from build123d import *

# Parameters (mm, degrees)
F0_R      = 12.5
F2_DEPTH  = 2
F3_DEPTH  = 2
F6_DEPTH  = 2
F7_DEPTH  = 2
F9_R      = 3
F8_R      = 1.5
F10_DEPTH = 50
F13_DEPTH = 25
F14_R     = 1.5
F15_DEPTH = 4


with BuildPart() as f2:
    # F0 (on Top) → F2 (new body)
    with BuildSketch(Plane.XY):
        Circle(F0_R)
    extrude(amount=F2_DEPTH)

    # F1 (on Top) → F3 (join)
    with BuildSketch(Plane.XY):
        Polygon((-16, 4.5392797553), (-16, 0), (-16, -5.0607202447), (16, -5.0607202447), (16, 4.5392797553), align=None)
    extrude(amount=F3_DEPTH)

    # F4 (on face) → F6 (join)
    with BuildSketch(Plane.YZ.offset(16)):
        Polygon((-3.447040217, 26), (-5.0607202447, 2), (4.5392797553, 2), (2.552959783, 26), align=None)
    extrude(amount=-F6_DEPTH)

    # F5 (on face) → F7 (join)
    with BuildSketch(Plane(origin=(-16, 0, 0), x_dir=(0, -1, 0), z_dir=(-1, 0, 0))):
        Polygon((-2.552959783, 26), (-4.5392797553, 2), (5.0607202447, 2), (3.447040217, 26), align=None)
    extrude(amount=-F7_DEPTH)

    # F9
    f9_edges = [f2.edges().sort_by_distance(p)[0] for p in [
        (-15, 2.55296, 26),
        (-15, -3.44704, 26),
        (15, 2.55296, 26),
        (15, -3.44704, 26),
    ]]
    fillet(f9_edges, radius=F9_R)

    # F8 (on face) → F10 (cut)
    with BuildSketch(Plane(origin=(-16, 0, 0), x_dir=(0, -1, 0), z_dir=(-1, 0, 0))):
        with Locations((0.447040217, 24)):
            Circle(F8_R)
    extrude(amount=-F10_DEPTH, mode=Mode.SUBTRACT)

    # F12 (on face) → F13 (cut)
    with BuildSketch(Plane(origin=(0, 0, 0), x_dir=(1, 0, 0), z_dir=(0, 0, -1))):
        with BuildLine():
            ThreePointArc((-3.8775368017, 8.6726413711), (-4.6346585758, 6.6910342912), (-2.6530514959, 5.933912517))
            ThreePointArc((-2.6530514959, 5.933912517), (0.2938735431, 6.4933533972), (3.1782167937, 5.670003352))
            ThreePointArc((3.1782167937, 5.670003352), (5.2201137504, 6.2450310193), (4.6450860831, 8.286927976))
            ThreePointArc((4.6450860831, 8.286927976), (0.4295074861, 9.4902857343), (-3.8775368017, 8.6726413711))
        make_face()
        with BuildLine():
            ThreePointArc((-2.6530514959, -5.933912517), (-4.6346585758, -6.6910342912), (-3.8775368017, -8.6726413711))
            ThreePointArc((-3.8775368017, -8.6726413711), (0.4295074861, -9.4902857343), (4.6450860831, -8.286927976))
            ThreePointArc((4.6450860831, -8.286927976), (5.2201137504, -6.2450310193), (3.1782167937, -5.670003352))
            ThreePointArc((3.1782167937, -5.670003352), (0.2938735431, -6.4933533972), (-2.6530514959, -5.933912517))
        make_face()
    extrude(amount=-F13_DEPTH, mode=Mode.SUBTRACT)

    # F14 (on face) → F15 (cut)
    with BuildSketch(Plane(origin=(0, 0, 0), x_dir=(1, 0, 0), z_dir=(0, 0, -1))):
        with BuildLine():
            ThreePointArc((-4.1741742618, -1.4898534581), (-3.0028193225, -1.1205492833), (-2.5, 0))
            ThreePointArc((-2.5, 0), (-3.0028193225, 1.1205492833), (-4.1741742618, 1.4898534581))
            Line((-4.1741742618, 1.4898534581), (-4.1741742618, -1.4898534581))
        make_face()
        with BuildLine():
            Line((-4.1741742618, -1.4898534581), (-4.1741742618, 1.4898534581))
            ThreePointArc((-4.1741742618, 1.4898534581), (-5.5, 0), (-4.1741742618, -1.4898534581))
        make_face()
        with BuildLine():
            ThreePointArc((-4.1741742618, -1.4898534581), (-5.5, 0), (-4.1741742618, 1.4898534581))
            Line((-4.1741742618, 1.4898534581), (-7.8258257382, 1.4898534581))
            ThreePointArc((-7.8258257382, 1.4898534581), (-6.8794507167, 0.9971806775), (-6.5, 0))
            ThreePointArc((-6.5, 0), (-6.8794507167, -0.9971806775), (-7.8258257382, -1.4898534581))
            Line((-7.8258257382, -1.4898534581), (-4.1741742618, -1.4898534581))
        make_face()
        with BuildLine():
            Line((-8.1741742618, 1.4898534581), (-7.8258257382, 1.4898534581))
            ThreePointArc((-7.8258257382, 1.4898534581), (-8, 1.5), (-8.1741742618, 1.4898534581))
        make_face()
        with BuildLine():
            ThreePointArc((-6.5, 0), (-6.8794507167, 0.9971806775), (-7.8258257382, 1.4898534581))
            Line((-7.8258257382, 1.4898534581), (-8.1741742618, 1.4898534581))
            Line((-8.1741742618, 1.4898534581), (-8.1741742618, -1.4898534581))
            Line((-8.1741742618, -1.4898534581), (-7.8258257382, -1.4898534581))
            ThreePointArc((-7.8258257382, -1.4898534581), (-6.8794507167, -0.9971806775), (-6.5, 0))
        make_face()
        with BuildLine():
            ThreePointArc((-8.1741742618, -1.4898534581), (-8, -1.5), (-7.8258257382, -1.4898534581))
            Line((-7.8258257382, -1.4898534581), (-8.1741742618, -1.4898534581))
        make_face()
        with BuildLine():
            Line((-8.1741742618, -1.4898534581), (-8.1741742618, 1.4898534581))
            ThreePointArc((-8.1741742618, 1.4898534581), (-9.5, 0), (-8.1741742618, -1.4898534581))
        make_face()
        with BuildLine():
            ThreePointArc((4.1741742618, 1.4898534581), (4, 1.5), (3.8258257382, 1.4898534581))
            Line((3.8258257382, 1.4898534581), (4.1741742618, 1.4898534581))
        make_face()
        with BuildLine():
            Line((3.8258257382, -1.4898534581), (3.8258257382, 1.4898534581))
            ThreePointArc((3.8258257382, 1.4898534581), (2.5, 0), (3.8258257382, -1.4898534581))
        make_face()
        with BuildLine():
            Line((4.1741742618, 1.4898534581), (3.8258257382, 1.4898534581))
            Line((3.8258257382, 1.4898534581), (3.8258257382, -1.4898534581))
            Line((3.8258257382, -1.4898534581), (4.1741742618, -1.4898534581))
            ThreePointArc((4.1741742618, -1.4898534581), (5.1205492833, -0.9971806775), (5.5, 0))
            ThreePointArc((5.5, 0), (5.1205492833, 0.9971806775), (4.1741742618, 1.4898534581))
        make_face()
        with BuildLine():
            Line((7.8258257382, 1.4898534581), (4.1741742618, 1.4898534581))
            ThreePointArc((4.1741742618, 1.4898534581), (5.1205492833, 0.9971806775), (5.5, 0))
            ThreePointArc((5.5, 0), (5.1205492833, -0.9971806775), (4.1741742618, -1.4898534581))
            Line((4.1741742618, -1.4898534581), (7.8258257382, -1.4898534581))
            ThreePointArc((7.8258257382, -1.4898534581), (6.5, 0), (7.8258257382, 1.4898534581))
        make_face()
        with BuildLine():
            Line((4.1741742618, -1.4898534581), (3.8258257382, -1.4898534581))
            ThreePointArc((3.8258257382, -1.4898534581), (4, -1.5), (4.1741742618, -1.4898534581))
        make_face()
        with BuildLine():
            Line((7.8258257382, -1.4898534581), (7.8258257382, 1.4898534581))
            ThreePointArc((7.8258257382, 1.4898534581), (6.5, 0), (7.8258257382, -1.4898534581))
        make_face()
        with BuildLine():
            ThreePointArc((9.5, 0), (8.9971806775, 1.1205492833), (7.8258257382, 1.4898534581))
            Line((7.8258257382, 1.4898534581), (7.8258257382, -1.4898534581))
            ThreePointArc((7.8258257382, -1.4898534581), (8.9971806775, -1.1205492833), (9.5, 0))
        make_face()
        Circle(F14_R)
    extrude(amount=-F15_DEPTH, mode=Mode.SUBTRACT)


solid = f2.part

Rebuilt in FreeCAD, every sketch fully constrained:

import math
import FreeCAD as App
import Part
import Sketcher

V = App.Vector


def edges_at(feature, points):
    """Names of the edges that pass closest to the given points."""
    edges = feature.Shape.Edges
    near = lambda p: min(range(len(edges)), key=lambda i: edges[i].distToShape(Part.Vertex(*p))[0])
    return sorted({f"Edge{near(p) + 1}" for p in points})

doc = App.newDocument("Part")
body = doc.addObject("PartDesign::Body", "Body")

# Sketch on XY plane
sketch1 = doc.addObject("Sketcher::SketchObject", "Sketch")
body.addObject(sketch1)
sketch1.AttachmentSupport = (doc.XY_Plane, [""])
sketch1.MapMode = "FlatFace"
sketch1.addGeometry(Part.Circle(V(0, 0, 0), V(0, 0, 1), 12), False)
sketch1.addConstraint([
    Sketcher.Constraint("Coincident", 0, 3, -1, 1),
    Sketcher.Constraint("Diameter", 0, 25.0),
])
pad1 = doc.addObject("PartDesign::Pad", "Pad")
body.addObject(pad1)
pad1.Profile = sketch1
pad1.Length = 2

# Sketch on XY plane
sketch2 = doc.addObject("Sketcher::SketchObject", "Sketch001")
body.addObject(sketch2)
sketch2.AttachmentSupport = (doc.XY_Plane, [""])
sketch2.MapMode = "FlatFace"
sketch2.addGeometry([
    Part.LineSegment(V(-16, 5, 0), V(-16, -5, 0)),
    Part.LineSegment(V(-16, -5, 0), V(16, -5, 0)),
    Part.LineSegment(V(16, -5, 0), V(16, 5, 0)),
    Part.LineSegment(V(16, 5, 0), V(-16, 5, 0)),
], False)
sketch2.addConstraint([
    Sketcher.Constraint("Coincident", 0, 2, 1, 1),
    Sketcher.Constraint("Coincident", 1, 2, 2, 1),
    Sketcher.Constraint("Coincident", 2, 2, 3, 1),
    Sketcher.Constraint("Coincident", 3, 2, 0, 1),
    Sketcher.Constraint("Vertical", 0),
    Sketcher.Constraint("Horizontal", 1),
    Sketcher.Constraint("Vertical", 2),
    Sketcher.Constraint("Horizontal", 3),
    Sketcher.Constraint("DistanceX", 1, 1, 1, 2, 32.0),
    Sketcher.Constraint("DistanceY", 0, 2, 0, 1, 9.6),
    Sketcher.Constraint("DistanceX", 0, 2, -1, 1, 16.0),
    Sketcher.Constraint("DistanceY", 0, 2, -1, 1, 5.06072),
])
pad2 = doc.addObject("PartDesign::Pad", "Pad001")
body.addObject(pad2)
pad2.Profile = sketch2
pad2.Length = 2

# Sketch on YZ plane
sketch3 = doc.addObject("Sketcher::SketchObject", "Sketch002")
body.addObject(sketch3)
sketch3.AttachmentSupport = (doc.YZ_Plane, [""])
sketch3.MapMode = "FlatFace"
sketch3.AttachmentOffset = App.Placement(V(0, 0, 16), App.Rotation())
sketch3.addGeometry([
    Part.LineSegment(V(-3, 26, 0), V(-5, 2, 0)),
    Part.LineSegment(V(-5, 2, 0), V(5, 2, 0)),
    Part.LineSegment(V(5, 2, 0), V(3, 26, 0)),
    Part.LineSegment(V(3, 26, 0), V(-3, 26, 0)),
], False)
sketch3.addConstraint([
    Sketcher.Constraint("Coincident", 0, 2, 1, 1),
    Sketcher.Constraint("Coincident", 1, 2, 2, 1),
    Sketcher.Constraint("Coincident", 2, 2, 3, 1),
    Sketcher.Constraint("Coincident", 3, 2, 0, 1),
    Sketcher.Constraint("Horizontal", 1),
    Sketcher.Constraint("Horizontal", 3),
    Sketcher.Constraint("DistanceX", 3, 2, 3, 1, 6.0),
    Sketcher.Constraint("DistanceX", 1, 1, 1, 2, 9.6),
    Sketcher.Constraint("DistanceY", -1, 1, 0, 2, 2.0),
    Sketcher.Constraint("DistanceY", -1, 1, 2, 2, 26.0),
    Sketcher.Constraint("Distance", 0, 24.054188),
    Sketcher.Constraint("DistanceX", 0, 2, -1, 1, 5.06072),
])
pad3 = doc.addObject("PartDesign::Pad", "Pad002")
body.addObject(pad3)
pad3.Profile = sketch3
pad3.Length = 2
pad3.Reversed = True

# Sketch on YZ plane
sketch4 = doc.addObject("Sketcher::SketchObject", "Sketch003")
body.addObject(sketch4)
sketch4.AttachmentSupport = (doc.YZ_Plane, [""])
sketch4.MapMode = "FlatFace"
sketch4.AttachmentOffset = App.Placement(V(0, 0, -16), App.Rotation())
sketch4.addGeometry([
    Part.LineSegment(V(3, 26, 0), V(5, 2, 0)),
    Part.LineSegment(V(5, 2, 0), V(-5, 2, 0)),
    Part.LineSegment(V(-5, 2, 0), V(-3, 26, 0)),
    Part.LineSegment(V(-3, 26, 0), V(3, 26, 0)),
], False)
sketch4.addConstraint([
    Sketcher.Constraint("Coincident", 0, 2, 1, 1),
    Sketcher.Constraint("Coincident", 1, 2, 2, 1),
    Sketcher.Constraint("Coincident", 2, 2, 3, 1),
    Sketcher.Constraint("Coincident", 3, 2, 0, 1),
    Sketcher.Constraint("Horizontal", 1),
    Sketcher.Constraint("Horizontal", 3),
    Sketcher.Constraint("DistanceX", 3, 1, 3, 2, 6.0),
    Sketcher.Constraint("DistanceX", 1, 2, 1, 1, 9.6),
    Sketcher.Constraint("DistanceY", -1, 1, 0, 2, 2.0),
    Sketcher.Constraint("DistanceY", -1, 1, 2, 2, 26.0),
    Sketcher.Constraint("Distance", 2, 24.054188),
    Sketcher.Constraint("DistanceX", -1, 1, 0, 2, 4.53928),
])
pad4 = doc.addObject("PartDesign::Pad", "Pad003")
body.addObject(pad4)
pad4.Profile = sketch4
pad4.Length = 2
doc.recompute()

fillet = doc.addObject("PartDesign::Fillet", "Fillet")
body.addObject(fillet)
fillet.Base = (pad4, edges_at(pad4, [
    (-15, 2.553, 26),
    (-15, -3.447, 26),
    (15, 2.553, 26),
    (15, -3.447, 26),
]))
fillet.Radius = 3

# Sketch on YZ plane
sketch5 = doc.addObject("Sketcher::SketchObject", "Sketch004")
body.addObject(sketch5)
sketch5.AttachmentSupport = (doc.YZ_Plane, [""])
sketch5.MapMode = "FlatFace"
sketch5.AttachmentOffset = App.Placement(V(0, 0, -16), App.Rotation())
sketch5.addGeometry(Part.Circle(V(-0.4, 24, 0), V(0, 0, 1), 1.5), False)
sketch5.addConstraint([
    Sketcher.Constraint("Diameter", 0, 3.0),
    Sketcher.Constraint("DistanceY", -1, 1, 0, 3, 24.0),
    Sketcher.Constraint("DistanceX", 0, 3, -1, 1, 0.44704),
])
pocket1 = doc.addObject("PartDesign::Pocket", "Pocket")
body.addObject(pocket1)
pocket1.Profile = sketch5
pocket1.Length = 50
pocket1.Reversed = True

# Sketch on XY plane
sketch6 = doc.addObject("Sketcher::SketchObject", "Sketch005")
body.addObject(sketch6)
sketch6.AttachmentSupport = (doc.XY_Plane, [""])
sketch6.MapMode = "FlatFace"
sketch6.addGeometry([
    Part.ArcOfCircle(Part.Circle(V(-3.3, -7.3, 0), V(0, 0, 1), 1.5), math.radians(66), math.radians(246)),  # 0
    Part.ArcOfCircle(Part.Circle(V(0, 0, 0), V(0, 0, 1), 6.5), math.radians(-114), math.radians(-61)),  # 1
    Part.ArcOfCircle(Part.Circle(V(3.9, -7, 0), V(0, 0, 1), 1.5), math.radians(-61), math.radians(119)),  # 2
    Part.ArcOfCircle(Part.Circle(V(0, 0, 0), V(0, 0, 1), 9.5), math.radians(-114), math.radians(-61)),  # 3
    Part.ArcOfCircle(Part.Circle(V(-3.3, 7.3, 0), V(0, 0, 1), 1.5), math.radians(114), math.radians(294)),  # 4
    Part.ArcOfCircle(Part.Circle(V(0, 0, 0), V(0, 0, 1), 9.5), math.radians(61), math.radians(114)),  # 5
    Part.ArcOfCircle(Part.Circle(V(3.9, 7, 0), V(0, 0, 1), 1.5), math.radians(-119), math.radians(61)),  # 6
    Part.ArcOfCircle(Part.Circle(V(0, 0, 0), V(0, 0, 1), 6.5), math.radians(61), math.radians(114)),  # 7
], False)
sketch6.addConstraint([
    Sketcher.Constraint("Tangent", 0, 1, 1, 1),
    Sketcher.Constraint("Tangent", 1, 2, 2, 2),
    Sketcher.Constraint("Tangent", 2, 1, 3, 2),
    Sketcher.Constraint("Tangent", 3, 1, 0, 2),
    Sketcher.Constraint("Tangent", 4, 1, 5, 2),
    Sketcher.Constraint("Tangent", 5, 1, 6, 2),
    Sketcher.Constraint("Tangent", 6, 1, 7, 1),
    Sketcher.Constraint("Tangent", 7, 2, 4, 2),
    Sketcher.Constraint("Coincident", 1, 3, -1, 1),
    Sketcher.Constraint("Coincident", 3, 3, -1, 1),
    Sketcher.Constraint("Coincident", 5, 3, -1, 1),
    Sketcher.Constraint("Coincident", 7, 3, -1, 1),
    Sketcher.Constraint("Equal", 2, 4),
    Sketcher.Constraint("Equal", 3, 5),
    Sketcher.Constraint("Vertical", 0, 3, 4, 3),
    Sketcher.Constraint("Vertical", 2, 3, 6, 3),
    Sketcher.Constraint("Radius", 0, 1.5),
    Sketcher.Constraint("Radius", 1, 6.5),
    Sketcher.Constraint("DistanceX", -1, 1, 2, 3, 3.911651),
    Sketcher.Constraint("DistanceX", 0, 1, -1, 1, 2.653051),
])
pocket2 = doc.addObject("PartDesign::Pocket", "Pocket001")
body.addObject(pocket2)
pocket2.Profile = sketch6
pocket2.Length = 25
pocket2.Reversed = True

# Sketch on XY plane
sketch7 = doc.addObject("Sketcher::SketchObject", "Sketch006")
body.addObject(sketch7)
sketch7.AttachmentSupport = (doc.XY_Plane, [""])
sketch7.MapMode = "FlatFace"
sketch7.addGeometry([
    Part.ArcOfCircle(Part.Circle(V(-4, 0, 0), V(0, 0, 1), 1.5), math.radians(0), math.radians(97)),  # 0
    Part.ArcOfCircle(Part.Circle(V(-4, 0, 0), V(0, 0, 1), 1.5), math.radians(-97), math.radians(0)),  # 1
    Part.LineSegment(V(-4.17, -1.49, 0), V(-7.83, -1.49, 0)),  # 2
    Part.ArcOfCircle(Part.Circle(V(-8, 0, 0), V(0, 0, 1), 1.5), math.radians(-96.67), math.radians(-83.33)),  # 3
    Part.ArcOfCircle(Part.Circle(V(-8, 0, 0), V(0, 0, 1), 1.5), math.radians(97), math.radians(263)),  # 4
    Part.ArcOfCircle(Part.Circle(V(-8, 0, 0), V(0, 0, 1), 1.5), math.radians(83.33), math.radians(96.67)),  # 5
    Part.LineSegment(V(-7.83, 1.49, 0), V(-4.17, 1.49, 0)),  # 6
    Part.ArcOfCircle(Part.Circle(V(4, 0, 0), V(0, 0, 1), 1.5), math.radians(-96.67), math.radians(-83.33)),  # 7
    Part.ArcOfCircle(Part.Circle(V(4, 0, 0), V(0, 0, 1), 1.5), math.radians(97), math.radians(263)),  # 8
    Part.ArcOfCircle(Part.Circle(V(4, 0, 0), V(0, 0, 1), 1.5), math.radians(83.33), math.radians(96.67)),  # 9
    Part.LineSegment(V(4.17, 1.49, 0), V(7.83, 1.49, 0)),  # 10
    Part.ArcOfCircle(Part.Circle(V(8, 0, 0), V(0, 0, 1), 1.5), math.radians(0), math.radians(97)),  # 11
    Part.ArcOfCircle(Part.Circle(V(8, 0, 0), V(0, 0, 1), 1.5), math.radians(-97), math.radians(0)),  # 12
    Part.LineSegment(V(7.83, -1.49, 0), V(4.17, -1.49, 0)),  # 13
    Part.Circle(V(0, 0, 0), V(0, 0, 1), 1.5),  # 14
], False)
sketch7.addConstraint([
    Sketcher.Constraint("Tangent", 0, 1, 1, 2),
    Sketcher.Constraint("Coincident", 1, 1, 2, 1),
    Sketcher.Constraint("Coincident", 2, 2, 3, 2),
    Sketcher.Constraint("Tangent", 3, 1, 4, 2),
    Sketcher.Constraint("Tangent", 4, 1, 5, 2),
    Sketcher.Constraint("Coincident", 5, 1, 6, 1),
    Sketcher.Constraint("Coincident", 6, 2, 0, 2),
    Sketcher.Constraint("Tangent", 7, 1, 8, 2),
    Sketcher.Constraint("Tangent", 8, 1, 9, 2),
    Sketcher.Constraint("Coincident", 9, 1, 10, 1),
    Sketcher.Constraint("Coincident", 10, 2, 11, 2),
    Sketcher.Constraint("Tangent", 11, 1, 12, 2),
    Sketcher.Constraint("Coincident", 12, 1, 13, 1),
    Sketcher.Constraint("Coincident", 13, 2, 7, 2),
    Sketcher.Constraint("Horizontal", 2),
    Sketcher.Constraint("Horizontal", 6),
    Sketcher.Constraint("Horizontal", 10),
    Sketcher.Constraint("Horizontal", 13),
    Sketcher.Constraint("Coincident", 14, 3, -1, 1),
    Sketcher.Constraint("Coincident", 5, 3, 3, 3),
    Sketcher.Constraint("Coincident", 9, 3, 7, 3),
    Sketcher.Constraint("Equal", 0, 1),
    Sketcher.Constraint("Equal", 1, 3),
    Sketcher.Constraint("Equal", 5, 7),
    Sketcher.Constraint("Equal", 9, 11),
    Sketcher.Constraint("Equal", 11, 12),
    Sketcher.Constraint("Equal", 12, 14),
    Sketcher.Constraint("Symmetric", 0, 3, 7, 3, -1, 1),
    Sketcher.Constraint("Symmetric", 3, 3, 11, 3, -1, 1),
    Sketcher.Constraint("Symmetric", 6, 2, 9, 1, -2),
    Sketcher.Constraint("Symmetric", 2, 2, 12, 1, -2),
    Sketcher.Constraint("PointOnObject", 0, 1, -1),
    Sketcher.Constraint("PointOnObject", 11, 1, -1),
    Sketcher.Constraint("Horizontal", 2, 2, 3, 1),
    Sketcher.Constraint("Horizontal", 4, 1, 5, 1),
    Sketcher.Constraint("Horizontal", 3, 1, 7, 1),
    Sketcher.Constraint("Horizontal", 6, 2, 8, 1),
    Sketcher.Constraint("Vertical", 3, 1, 4, 1),
    Sketcher.Constraint("Diameter", 14, 3.0),
    Sketcher.Constraint("DistanceX", 0, 3, -1, 1, 4.0),
    Sketcher.Constraint("DistanceX", 3, 3, -1, 1, 8.0),
    Sketcher.Constraint("DistanceX", 2, 2, 2, 1, 3.651651),
])
pocket3 = doc.addObject("PartDesign::Pocket", "Pocket002")
body.addObject(pocket3)
pocket3.Profile = sketch7
pocket3.Length = 4
pocket3.Reversed = True

doc.recompute()
